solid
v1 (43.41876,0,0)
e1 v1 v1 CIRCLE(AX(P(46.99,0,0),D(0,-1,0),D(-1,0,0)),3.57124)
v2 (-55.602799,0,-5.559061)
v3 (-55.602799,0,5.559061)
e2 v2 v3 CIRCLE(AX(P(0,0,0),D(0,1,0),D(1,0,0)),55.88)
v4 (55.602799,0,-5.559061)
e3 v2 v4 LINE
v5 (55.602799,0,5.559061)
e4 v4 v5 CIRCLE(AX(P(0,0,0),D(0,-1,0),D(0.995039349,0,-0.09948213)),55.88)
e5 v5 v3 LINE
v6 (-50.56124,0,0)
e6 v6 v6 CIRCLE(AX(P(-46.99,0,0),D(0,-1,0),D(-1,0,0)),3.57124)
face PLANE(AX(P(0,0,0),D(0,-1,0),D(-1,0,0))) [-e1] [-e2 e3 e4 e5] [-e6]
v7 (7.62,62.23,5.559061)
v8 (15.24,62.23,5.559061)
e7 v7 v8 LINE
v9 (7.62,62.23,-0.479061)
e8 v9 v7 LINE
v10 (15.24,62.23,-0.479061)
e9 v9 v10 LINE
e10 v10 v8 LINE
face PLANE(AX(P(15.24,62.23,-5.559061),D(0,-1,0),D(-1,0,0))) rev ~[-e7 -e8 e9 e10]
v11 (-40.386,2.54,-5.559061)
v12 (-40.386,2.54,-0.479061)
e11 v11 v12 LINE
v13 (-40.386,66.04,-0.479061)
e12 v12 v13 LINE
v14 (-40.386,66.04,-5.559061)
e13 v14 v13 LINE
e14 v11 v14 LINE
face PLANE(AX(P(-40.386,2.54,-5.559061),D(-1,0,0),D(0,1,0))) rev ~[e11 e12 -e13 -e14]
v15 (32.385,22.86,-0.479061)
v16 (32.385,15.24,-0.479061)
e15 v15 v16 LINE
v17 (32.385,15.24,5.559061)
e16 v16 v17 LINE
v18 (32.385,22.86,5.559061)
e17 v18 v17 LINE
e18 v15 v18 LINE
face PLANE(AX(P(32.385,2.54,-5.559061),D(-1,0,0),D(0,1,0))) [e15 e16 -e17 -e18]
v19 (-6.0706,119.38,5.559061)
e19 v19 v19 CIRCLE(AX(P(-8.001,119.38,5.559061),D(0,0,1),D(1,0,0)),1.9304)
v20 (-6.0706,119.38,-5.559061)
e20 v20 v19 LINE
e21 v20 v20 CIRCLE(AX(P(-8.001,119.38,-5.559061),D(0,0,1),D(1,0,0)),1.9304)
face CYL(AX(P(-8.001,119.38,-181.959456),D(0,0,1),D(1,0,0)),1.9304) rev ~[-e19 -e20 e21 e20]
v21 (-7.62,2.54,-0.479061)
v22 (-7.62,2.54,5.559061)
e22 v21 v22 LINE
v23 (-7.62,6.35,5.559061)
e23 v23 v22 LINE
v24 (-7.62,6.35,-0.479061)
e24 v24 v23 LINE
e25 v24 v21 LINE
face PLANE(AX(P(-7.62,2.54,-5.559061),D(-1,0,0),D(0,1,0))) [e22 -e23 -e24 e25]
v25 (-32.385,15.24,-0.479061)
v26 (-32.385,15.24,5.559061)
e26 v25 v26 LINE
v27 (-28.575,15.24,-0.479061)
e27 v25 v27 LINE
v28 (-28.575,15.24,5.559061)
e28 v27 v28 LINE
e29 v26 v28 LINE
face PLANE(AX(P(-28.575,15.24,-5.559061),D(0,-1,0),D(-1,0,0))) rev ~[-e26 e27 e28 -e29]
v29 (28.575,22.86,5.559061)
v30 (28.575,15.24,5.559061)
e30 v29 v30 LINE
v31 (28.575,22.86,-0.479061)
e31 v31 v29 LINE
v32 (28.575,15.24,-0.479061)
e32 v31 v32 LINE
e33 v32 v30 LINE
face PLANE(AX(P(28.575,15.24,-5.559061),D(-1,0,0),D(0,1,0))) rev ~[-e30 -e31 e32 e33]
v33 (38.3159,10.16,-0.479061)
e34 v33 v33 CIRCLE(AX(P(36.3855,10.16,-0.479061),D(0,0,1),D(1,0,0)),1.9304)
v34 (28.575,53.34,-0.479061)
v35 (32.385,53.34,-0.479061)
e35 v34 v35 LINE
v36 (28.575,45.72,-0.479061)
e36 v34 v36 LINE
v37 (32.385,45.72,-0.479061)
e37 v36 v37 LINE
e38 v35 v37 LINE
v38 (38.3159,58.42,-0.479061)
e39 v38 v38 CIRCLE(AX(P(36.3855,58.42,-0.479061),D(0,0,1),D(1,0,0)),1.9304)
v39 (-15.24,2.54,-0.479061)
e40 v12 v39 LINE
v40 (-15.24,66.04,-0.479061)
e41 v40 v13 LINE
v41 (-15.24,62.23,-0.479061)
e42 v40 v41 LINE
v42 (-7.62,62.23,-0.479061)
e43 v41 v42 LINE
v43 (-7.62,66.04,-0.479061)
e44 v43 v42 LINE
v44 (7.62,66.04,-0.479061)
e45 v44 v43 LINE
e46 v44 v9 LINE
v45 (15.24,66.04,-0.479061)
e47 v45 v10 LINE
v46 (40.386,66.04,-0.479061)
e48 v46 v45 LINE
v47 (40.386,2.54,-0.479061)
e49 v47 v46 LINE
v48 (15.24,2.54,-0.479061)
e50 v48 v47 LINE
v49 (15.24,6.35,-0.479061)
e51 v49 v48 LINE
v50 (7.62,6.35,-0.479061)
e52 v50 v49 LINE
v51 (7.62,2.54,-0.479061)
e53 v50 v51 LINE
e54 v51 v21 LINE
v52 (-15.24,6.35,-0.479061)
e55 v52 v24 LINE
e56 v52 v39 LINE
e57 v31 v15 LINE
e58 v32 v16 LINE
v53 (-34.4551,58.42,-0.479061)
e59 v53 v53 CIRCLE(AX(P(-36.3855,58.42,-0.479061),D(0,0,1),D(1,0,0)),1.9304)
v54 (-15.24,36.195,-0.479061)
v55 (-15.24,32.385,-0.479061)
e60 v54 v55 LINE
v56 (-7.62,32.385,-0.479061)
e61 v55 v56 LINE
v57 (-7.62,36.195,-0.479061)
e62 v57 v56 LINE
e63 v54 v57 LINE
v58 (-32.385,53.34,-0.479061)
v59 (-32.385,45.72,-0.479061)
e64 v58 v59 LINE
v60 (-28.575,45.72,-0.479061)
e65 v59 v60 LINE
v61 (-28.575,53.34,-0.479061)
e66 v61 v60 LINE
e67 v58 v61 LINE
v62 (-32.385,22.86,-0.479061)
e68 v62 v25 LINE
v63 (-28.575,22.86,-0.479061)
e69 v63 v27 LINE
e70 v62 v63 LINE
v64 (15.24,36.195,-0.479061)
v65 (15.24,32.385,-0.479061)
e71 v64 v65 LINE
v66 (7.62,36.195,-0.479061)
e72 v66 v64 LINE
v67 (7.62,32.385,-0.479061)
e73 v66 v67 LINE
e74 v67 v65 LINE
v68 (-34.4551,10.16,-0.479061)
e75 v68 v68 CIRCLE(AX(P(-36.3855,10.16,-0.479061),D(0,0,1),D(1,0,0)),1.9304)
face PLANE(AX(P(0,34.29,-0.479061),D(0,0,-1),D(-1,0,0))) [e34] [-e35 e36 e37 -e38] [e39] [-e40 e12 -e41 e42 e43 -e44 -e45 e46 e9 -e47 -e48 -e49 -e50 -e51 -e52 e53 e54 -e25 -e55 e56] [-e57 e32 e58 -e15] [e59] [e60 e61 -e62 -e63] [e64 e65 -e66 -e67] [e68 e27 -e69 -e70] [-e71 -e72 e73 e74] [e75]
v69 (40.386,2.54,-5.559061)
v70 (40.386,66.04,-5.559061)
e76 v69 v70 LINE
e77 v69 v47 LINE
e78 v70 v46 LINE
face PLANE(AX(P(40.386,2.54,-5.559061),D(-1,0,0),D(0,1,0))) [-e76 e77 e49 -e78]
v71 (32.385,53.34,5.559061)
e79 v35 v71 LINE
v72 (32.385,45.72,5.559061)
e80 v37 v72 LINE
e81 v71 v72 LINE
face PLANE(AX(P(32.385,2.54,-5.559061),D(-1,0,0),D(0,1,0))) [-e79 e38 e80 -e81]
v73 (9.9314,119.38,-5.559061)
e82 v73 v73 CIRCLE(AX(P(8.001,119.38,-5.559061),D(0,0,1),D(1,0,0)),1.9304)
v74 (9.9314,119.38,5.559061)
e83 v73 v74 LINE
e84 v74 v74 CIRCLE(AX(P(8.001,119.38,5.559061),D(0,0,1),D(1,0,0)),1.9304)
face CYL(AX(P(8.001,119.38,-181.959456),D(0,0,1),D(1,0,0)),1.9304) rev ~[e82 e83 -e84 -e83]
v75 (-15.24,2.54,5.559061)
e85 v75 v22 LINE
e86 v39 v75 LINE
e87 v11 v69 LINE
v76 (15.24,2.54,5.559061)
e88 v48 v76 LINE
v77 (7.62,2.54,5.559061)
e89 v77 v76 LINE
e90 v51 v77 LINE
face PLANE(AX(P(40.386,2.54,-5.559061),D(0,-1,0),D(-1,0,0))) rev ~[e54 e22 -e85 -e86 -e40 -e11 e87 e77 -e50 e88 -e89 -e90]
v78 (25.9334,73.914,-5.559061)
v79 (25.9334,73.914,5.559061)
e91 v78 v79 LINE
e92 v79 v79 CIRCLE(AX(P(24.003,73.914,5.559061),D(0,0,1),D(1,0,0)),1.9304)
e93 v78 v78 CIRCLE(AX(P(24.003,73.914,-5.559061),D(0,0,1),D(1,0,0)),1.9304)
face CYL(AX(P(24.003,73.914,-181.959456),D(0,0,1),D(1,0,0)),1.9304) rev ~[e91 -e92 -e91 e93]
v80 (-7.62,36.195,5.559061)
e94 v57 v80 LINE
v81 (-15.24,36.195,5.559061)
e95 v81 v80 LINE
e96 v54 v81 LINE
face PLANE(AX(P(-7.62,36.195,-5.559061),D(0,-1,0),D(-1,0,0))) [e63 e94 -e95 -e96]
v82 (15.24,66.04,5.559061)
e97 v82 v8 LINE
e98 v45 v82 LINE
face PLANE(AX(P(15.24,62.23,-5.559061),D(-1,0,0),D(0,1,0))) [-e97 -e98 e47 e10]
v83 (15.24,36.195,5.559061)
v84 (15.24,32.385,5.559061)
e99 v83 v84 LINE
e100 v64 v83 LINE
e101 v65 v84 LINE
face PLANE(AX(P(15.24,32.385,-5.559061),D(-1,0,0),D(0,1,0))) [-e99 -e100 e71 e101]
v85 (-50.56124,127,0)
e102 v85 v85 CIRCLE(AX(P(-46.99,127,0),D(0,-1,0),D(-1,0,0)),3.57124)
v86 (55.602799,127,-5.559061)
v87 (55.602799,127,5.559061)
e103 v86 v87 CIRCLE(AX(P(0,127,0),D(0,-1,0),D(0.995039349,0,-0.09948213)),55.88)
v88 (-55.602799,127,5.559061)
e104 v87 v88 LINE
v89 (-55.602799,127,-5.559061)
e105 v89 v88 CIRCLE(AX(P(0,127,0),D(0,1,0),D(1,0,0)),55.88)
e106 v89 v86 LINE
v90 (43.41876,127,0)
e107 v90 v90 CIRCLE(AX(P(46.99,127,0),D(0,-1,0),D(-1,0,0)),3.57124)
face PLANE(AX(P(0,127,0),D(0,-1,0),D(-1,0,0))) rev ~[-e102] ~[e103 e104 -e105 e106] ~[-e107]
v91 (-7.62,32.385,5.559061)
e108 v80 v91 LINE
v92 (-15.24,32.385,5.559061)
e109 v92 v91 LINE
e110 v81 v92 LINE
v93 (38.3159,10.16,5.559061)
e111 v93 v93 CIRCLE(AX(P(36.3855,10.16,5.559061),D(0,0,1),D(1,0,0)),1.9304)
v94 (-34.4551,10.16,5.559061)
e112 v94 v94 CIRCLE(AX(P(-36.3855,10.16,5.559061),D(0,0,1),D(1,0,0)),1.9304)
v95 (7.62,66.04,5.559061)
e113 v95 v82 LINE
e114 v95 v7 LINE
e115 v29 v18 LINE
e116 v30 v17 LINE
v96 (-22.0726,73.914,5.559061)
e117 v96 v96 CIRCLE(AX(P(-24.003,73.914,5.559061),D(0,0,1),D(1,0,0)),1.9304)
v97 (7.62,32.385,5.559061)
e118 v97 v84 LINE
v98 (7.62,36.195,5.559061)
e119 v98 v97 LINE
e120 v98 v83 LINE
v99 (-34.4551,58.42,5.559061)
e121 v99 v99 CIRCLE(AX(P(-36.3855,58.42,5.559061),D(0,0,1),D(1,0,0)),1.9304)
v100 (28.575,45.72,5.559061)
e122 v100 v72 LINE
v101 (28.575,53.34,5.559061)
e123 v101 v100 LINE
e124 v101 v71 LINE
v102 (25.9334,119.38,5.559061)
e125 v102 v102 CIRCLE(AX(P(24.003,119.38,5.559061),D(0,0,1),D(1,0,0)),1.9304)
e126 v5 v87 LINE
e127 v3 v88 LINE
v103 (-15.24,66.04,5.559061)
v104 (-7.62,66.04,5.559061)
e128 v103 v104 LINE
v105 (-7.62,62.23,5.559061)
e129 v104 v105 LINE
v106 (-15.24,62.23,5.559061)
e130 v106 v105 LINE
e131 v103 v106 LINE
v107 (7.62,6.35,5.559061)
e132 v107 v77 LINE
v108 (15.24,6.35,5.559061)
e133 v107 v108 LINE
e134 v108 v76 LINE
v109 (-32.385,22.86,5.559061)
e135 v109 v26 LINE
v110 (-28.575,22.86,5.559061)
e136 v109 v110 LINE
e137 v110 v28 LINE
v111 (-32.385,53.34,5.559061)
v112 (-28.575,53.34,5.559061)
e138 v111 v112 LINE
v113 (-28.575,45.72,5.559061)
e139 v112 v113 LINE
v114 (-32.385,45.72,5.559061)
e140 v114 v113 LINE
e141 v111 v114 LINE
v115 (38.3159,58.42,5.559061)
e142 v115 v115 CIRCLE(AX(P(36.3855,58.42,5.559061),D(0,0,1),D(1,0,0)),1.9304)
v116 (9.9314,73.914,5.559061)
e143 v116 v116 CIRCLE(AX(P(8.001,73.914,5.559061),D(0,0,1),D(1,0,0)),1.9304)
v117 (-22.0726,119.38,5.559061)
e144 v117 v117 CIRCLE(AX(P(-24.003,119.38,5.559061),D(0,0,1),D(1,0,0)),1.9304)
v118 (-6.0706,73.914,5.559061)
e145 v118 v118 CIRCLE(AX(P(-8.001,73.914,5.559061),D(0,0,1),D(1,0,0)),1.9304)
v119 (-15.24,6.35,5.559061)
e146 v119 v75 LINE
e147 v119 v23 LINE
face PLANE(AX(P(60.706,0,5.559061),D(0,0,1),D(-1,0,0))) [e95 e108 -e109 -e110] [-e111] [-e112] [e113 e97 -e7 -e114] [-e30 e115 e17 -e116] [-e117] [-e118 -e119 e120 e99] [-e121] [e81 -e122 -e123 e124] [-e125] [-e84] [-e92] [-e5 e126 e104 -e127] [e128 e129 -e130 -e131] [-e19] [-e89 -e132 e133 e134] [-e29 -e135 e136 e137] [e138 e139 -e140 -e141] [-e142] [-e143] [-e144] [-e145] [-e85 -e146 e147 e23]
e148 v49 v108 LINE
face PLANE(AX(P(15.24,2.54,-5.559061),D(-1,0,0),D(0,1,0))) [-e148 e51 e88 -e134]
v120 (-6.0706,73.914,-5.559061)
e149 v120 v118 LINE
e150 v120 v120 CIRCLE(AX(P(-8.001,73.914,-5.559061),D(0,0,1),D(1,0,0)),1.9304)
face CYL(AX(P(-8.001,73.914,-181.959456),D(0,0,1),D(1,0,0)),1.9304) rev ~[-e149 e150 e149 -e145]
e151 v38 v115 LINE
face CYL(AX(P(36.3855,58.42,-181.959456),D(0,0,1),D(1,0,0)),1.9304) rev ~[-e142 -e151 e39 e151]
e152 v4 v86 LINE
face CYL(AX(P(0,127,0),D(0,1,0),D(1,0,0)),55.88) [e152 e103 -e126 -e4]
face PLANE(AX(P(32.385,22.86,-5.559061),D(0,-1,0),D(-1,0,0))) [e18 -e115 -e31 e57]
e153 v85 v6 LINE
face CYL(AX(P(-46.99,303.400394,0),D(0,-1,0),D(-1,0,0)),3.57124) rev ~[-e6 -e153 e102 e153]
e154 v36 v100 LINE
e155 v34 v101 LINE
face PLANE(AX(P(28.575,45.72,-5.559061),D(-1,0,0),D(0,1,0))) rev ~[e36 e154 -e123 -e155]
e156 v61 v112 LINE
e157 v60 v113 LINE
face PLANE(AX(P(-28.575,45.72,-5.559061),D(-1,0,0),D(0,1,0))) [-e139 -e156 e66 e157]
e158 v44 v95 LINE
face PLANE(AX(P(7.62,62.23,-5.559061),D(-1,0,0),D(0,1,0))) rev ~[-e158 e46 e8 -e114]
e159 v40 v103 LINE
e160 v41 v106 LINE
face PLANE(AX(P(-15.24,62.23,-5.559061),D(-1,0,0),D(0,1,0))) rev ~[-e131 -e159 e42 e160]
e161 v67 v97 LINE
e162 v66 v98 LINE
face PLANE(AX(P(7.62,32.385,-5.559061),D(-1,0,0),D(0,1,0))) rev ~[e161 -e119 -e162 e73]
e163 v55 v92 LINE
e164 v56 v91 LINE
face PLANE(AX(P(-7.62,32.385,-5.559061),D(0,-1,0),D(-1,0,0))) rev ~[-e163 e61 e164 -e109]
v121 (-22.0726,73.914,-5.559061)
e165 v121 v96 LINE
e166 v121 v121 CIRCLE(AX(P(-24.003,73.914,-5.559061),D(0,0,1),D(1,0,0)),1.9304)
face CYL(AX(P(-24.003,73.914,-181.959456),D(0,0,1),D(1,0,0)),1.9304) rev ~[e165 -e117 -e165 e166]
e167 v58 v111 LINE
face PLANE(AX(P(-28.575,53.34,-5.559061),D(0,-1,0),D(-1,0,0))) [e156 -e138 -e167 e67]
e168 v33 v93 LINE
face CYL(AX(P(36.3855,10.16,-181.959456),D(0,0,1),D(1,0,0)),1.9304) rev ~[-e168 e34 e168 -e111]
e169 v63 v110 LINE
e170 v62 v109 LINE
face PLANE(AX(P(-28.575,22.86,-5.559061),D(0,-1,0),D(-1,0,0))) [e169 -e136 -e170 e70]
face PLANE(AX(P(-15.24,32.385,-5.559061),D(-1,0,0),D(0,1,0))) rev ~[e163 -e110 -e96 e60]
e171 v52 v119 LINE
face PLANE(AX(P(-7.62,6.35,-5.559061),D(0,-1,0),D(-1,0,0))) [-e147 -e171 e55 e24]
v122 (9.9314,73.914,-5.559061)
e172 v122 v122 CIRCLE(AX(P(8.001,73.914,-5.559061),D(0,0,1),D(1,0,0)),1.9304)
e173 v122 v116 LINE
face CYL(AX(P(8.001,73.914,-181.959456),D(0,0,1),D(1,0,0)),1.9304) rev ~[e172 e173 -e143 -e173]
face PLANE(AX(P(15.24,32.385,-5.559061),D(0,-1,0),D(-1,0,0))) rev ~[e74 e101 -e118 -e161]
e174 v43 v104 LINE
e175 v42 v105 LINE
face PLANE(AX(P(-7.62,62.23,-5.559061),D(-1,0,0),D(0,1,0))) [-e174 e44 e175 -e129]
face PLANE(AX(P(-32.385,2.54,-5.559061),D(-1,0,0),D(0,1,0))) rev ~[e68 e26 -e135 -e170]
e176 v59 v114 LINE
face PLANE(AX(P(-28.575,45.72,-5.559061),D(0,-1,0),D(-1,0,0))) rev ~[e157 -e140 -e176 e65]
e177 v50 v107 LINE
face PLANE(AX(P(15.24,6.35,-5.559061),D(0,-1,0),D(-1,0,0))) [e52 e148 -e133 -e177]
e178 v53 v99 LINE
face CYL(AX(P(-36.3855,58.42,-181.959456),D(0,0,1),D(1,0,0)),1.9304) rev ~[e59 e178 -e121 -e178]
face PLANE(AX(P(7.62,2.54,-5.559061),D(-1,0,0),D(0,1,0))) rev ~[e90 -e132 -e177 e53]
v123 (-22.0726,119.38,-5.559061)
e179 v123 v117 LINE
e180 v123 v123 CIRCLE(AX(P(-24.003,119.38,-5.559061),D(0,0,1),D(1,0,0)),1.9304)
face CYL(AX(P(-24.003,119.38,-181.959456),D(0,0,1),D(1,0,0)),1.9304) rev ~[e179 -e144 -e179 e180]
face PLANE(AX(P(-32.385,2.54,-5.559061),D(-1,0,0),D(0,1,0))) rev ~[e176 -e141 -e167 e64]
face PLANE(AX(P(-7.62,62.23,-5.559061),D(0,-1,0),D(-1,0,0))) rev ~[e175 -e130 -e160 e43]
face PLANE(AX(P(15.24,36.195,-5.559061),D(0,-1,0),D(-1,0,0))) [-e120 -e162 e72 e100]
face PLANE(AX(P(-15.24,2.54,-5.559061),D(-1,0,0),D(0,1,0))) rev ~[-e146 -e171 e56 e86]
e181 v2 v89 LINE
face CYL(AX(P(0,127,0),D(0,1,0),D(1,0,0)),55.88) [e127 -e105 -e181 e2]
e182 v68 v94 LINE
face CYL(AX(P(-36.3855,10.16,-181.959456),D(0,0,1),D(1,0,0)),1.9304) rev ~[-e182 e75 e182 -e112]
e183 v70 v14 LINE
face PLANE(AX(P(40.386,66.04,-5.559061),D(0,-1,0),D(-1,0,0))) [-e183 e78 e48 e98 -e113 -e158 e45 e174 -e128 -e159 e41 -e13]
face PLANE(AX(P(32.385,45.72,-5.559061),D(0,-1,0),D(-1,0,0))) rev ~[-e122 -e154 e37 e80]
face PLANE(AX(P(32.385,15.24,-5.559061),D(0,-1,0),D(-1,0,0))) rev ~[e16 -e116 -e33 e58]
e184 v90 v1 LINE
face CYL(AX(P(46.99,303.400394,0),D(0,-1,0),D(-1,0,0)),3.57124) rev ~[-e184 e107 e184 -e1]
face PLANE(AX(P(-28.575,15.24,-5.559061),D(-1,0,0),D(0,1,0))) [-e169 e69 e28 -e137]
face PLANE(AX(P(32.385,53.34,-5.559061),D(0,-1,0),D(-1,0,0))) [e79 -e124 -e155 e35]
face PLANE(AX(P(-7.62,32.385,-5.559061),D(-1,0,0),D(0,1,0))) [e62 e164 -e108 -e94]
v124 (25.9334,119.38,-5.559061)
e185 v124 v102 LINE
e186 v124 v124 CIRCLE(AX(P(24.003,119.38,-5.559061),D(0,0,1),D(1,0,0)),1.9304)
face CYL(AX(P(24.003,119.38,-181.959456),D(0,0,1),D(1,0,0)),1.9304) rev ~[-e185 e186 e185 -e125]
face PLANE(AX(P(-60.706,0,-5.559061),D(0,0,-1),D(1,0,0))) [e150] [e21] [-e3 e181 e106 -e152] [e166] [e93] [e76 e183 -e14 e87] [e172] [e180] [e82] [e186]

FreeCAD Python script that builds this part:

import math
import FreeCAD as App
import Part
import Sketcher

V = App.Vector
Q = App.Units.Quantity

doc = App.newDocument("Part")
body = doc.addObject("PartDesign::Body", "Body")

sketch1 = doc.addObject("Sketcher::SketchObject", "Sketch")
body.addObject(sketch1)
sketch1.AttachmentSupport = (doc.XZ_Plane, [""])
sketch1.MapMode = "FlatFace"
sketch1.addGeometry(Part.LineSegment(V(61, -6, 0), V(-61, -6, 0)), False)
sketch1.addGeometry(Part.ArcOfCircle(Part.Circle(V(0, 0, 0), V(0, 0, 1), 61), math.radians(174.77), math.radians(185.23)), False)
sketch1.addGeometry(Part.LineSegment(V(-61, 6, 0), V(61, 6, 0)), False)
sketch1.addGeometry(Part.ArcOfCircle(Part.Circle(V(0, 0, 0), V(0, 0, 1), 61), math.radians(-5.23), math.radians(5.23)), False)
sketch1.addConstraint(Sketcher.Constraint("Coincident", 0, 2, 1, 2))
sketch1.addConstraint(Sketcher.Constraint("Coincident", 1, 1, 2, 1))
sketch1.addConstraint(Sketcher.Constraint("Coincident", 2, 2, 3, 2))
sketch1.addConstraint(Sketcher.Constraint("Coincident", 3, 1, 0, 1))
sketch1.addConstraint(Sketcher.Constraint("Horizontal", 0))
sketch1.addConstraint(Sketcher.Constraint("Horizontal", 2))
sketch1.addConstraint(Sketcher.Constraint("Coincident", 1, 3, -1, 1))
sketch1.addConstraint(Sketcher.Constraint("Coincident", 3, 3, -1, 1))
sketch1.addConstraint(Sketcher.Constraint("Equal", 1, 3))
sketch1.addConstraint(Sketcher.Constraint("Vertical", 0, 2, 1, 1))
sketch1.addConstraint(Sketcher.Constraint("Radius", 1, Q("2.4 in")))
sketch1.addConstraint(Sketcher.Constraint("DistanceX", 0, 2, 0, 1, Q("4.78 in")))
pad1 = doc.addObject("PartDesign::Pad", "Pad")
body.addObject(pad1)
pad1.Profile = sketch1
pad1.Length = Q("5 in")
pad1.Reversed = True

sketch2 = doc.addObject("Sketcher::SketchObject", "Sketch001")
body.addObject(sketch2)
sketch2.AttachmentSupport = (doc.XZ_Plane, [""])
sketch2.MapMode = "FlatFace"
sketch2.AttachmentOffset = App.Placement(V(0, 0, -5 * 25.4), App.Rotation())
sketch2.addGeometry(Part.Circle(V(-47, 0, 0), V(0, 0, 1), 3.6), False)
sketch2.addGeometry(Part.Circle(V(47, 0, 0), V(0, 0, 1), 3.6), False)
sketch2.addConstraint(Sketcher.Constraint("Equal", 0, 1))
sketch2.addConstraint(Sketcher.Constraint("Symmetric", 0, 3, 1, 3, -1, 1))
sketch2.addConstraint(Sketcher.Constraint("PointOnObject", 0, 3, -1))
sketch2.addConstraint(Sketcher.Constraint("Diameter", 0, Q("0.2812 in")))
sketch2.addConstraint(Sketcher.Constraint("DistanceX", 0, 3, 1, 3, Q("3.7 in")))
doc.recompute()
hole = doc.addObject("PartDesign::Hole", "Hole")
body.addObject(hole)
hole.Profile = sketch2
hole.ThreadType = "None"
hole.Diameter = Q("0.2812 in")
hole.DepthType = "ThroughAll"
hole.Reversed = True

sketch3 = doc.addObject("Sketcher::SketchObject", "Sketch002")
body.addObject(sketch3)
sketch3.AttachmentSupport = (doc.XY_Plane, [""])
sketch3.MapMode = "FlatFace"
sketch3.AttachmentOffset = App.Placement(V(0, 0, -5.559061), App.Rotation())
sketch3.addGeometry(Part.Circle(V(8, 119.4, 0), V(0, 0, 1), 1.9), False)
sketch3.addGeometry(Part.Circle(V(8, 73.9, 0), V(0, 0, 1), 1.9), False)
sketch3.addGeometry(Part.Circle(V(-8, 73.9, 0), V(0, 0, 1), 1.9), False)
sketch3.addGeometry(Part.Circle(V(-8, 119.4, 0), V(0, 0, 1), 1.9), False)
sketch3.addConstraint(Sketcher.Constraint("Equal", 0, 1))
sketch3.addConstraint(Sketcher.Constraint("Equal", 1, 2))
sketch3.addConstraint(Sketcher.Constraint("Equal", 2, 3))
sketch3.addConstraint(Sketcher.Constraint("Symmetric", 1, 3, 2, 3, -2))
sketch3.addConstraint(Sketcher.Constraint("Symmetric", 0, 3, 3, 3, -2))
sketch3.addConstraint(Sketcher.Constraint("Vertical", 0, 3, 1, 3))
sketch3.addConstraint(Sketcher.Constraint("Diameter", 0, Q("0.152 in")))
sketch3.addConstraint(Sketcher.Constraint("DistanceY", -1, 1, 0, 3, Q("4.7 in")))
sketch3.addConstraint(Sketcher.Constraint("DistanceY", -1, 1, 1, 3, Q("2.91 in")))
sketch3.addConstraint(Sketcher.Constraint("DistanceX", 2, 3, 1, 3, Q("0.63 in")))
doc.recompute()
hole2 = doc.addObject("PartDesign::Hole", "Hole001")
body.addObject(hole2)
hole2.Profile = sketch3
hole2.ThreadType = "None"
hole2.Diameter = Q("0.152 in")
hole2.DepthType = "ThroughAll"
hole2.Reversed = True

sketch4 = doc.addObject("Sketcher::SketchObject", "Sketch003")
body.addObject(sketch4)
sketch4.AttachmentSupport = (doc.XY_Plane, [""])
sketch4.MapMode = "FlatFace"
sketch4.AttachmentOffset = App.Placement(V(0, 0, -5.559061), App.Rotation())
sketch4.addGeometry(Part.LineSegment(V(15.2, 36.2, 0), V(15.2, 32.4, 0)), False)
sketch4.addGeometry(Part.LineSegment(V(15.2, 32.4, 0), V(7.6, 32.4, 0)), False)
sketch4.addGeometry(Part.LineSegment(V(7.6, 32.4, 0), V(7.6, 36.2, 0)), False)
sketch4.addGeometry(Part.LineSegment(V(7.6, 36.2, 0), V(15.2, 36.2, 0)), False)
sketch4.addGeometry(Part.LineSegment(V(-28.6, 53.3, 0), V(-28.6, 45.7, 0)), False)
sketch4.addGeometry(Part.LineSegment(V(-28.6, 45.7, 0), V(-32.4, 45.7, 0)), False)
sketch4.addGeometry(Part.LineSegment(V(-32.4, 45.7, 0), V(-32.4, 53.3, 0)), False)
sketch4.addGeometry(Part.LineSegment(V(-32.4, 53.3, 0), V(-28.6, 53.3, 0)), False)
sketch4.addGeometry(Part.LineSegment(V(15.2, 66, 0), V(15.2, 62.2, 0)), False)
sketch4.addGeometry(Part.LineSegment(V(15.2, 62.2, 0), V(7.6, 62.2, 0)), False)
sketch4.addGeometry(Part.LineSegment(V(7.6, 62.2, 0), V(7.6, 66, 0)), False)
sketch4.addGeometry(Part.LineSegment(V(7.6, 66, 0), V(15.2, 66, 0)), False)
sketch4.addGeometry(Part.LineSegment(V(-7.6, 66, 0), V(-7.6, 62.2, 0)), False)
sketch4.addGeometry(Part.LineSegment(V(-7.6, 62.2, 0), V(-15.2, 62.2, 0)), False)
sketch4.addGeometry(Part.LineSegment(V(-15.2, 62.2, 0), V(-15.2, 66, 0)), False)
sketch4.addGeometry(Part.LineSegment(V(-15.2, 66, 0), V(-7.6, 66, 0)), False)
sketch4.addGeometry(Part.LineSegment(V(15.2, 6.3, 0), V(15.2, 2.5, 0)), False)
sketch4.addGeometry(Part.LineSegment(V(15.2, 2.5, 0), V(7.6, 2.5, 0)), False)
sketch4.addGeometry(Part.LineSegment(V(7.6, 2.5, 0), V(7.6, 6.3, 0)), False)
sketch4.addGeometry(Part.LineSegment(V(7.6, 6.3, 0), V(15.2, 6.3, 0)), False)
sketch4.addGeometry(Part.LineSegment(V(-7.6, 6.3, 0), V(-7.6, 2.5, 0)), False)
sketch4.addGeometry(Part.LineSegment(V(-7.6, 2.5, 0), V(-15.2, 2.5, 0)), False)
sketch4.addGeometry(Part.LineSegment(V(-15.2, 2.5, 0), V(-15.2, 6.3, 0)), False)
sketch4.addGeometry(Part.LineSegment(V(-15.2, 6.3, 0), V(-7.6, 6.3, 0)), False)
sketch4.addGeometry(Part.LineSegment(V(32.4, 53.3, 0), V(32.4, 45.7, 0)), False)
sketch4.addGeometry(Part.LineSegment(V(32.4, 45.7, 0), V(28.6, 45.7, 0)), False)
sketch4.addGeometry(Part.LineSegment(V(28.6, 45.7, 0), V(28.6, 53.3, 0)), False)
sketch4.addGeometry(Part.LineSegment(V(28.6, 53.3, 0), V(32.4, 53.3, 0)), False)
sketch4.addGeometry(Part.LineSegment(V(-28.6, 22.9, 0), V(-28.6, 15.2, 0)), False)
sketch4.addGeometry(Part.LineSegment(V(-28.6, 15.2, 0), V(-32.4, 15.2, 0)), False)
sketch4.addGeometry(Part.LineSegment(V(-32.4, 15.2, 0), V(-32.4, 22.9, 0)), False)
sketch4.addGeometry(Part.LineSegment(V(-32.4, 22.9, 0), V(-28.6, 22.9, 0)), False)
sketch4.addGeometry(Part.LineSegment(V(32.4, 22.9, 0), V(32.4, 15.2, 0)), False)
sketch4.addGeometry(Part.LineSegment(V(32.4, 15.2, 0), V(28.6, 15.2, 0)), False)
sketch4.addGeometry(Part.LineSegment(V(28.6, 15.2, 0), V(28.6, 22.9, 0)), False)
sketch4.addGeometry(Part.LineSegment(V(28.6, 22.9, 0), V(32.4, 22.9, 0)), False)
sketch4.addGeometry(Part.LineSegment(V(-7.6, 36.2, 0), V(-7.6, 32.4, 0)), False)
sketch4.addGeometry(Part.LineSegment(V(-7.6, 32.4, 0), V(-15.2, 32.4, 0)), False)
sketch4.addGeometry(Part.LineSegment(V(-15.2, 32.4, 0), V(-15.2, 36.2, 0)), False)
sketch4.addGeometry(Part.LineSegment(V(-15.2, 36.2, 0), V(-7.6, 36.2, 0)), False)
sketch4.addConstraint(Sketcher.Constraint("Coincident", 0, 2, 1, 1))
sketch4.addConstraint(Sketcher.Constraint("Coincident", 1, 2, 2, 1))
sketch4.addConstraint(Sketcher.Constraint("Coincident", 2, 2, 3, 1))
sketch4.addConstraint(Sketcher.Constraint("Coincident", 3, 2, 0, 1))
sketch4.addConstraint(Sketcher.Constraint("Coincident", 4, 2, 5, 1))
sketch4.addConstraint(Sketcher.Constraint("Coincident", 5, 2, 6, 1))
sketch4.addConstraint(Sketcher.Constraint("Coincident", 6, 2, 7, 1))
sketch4.addConstraint(Sketcher.Constraint("Coincident", 7, 2, 4, 1))
sketch4.addConstraint(Sketcher.Constraint("Coincident", 8, 2, 9, 1))
sketch4.addConstraint(Sketcher.Constraint("Coincident", 9, 2, 10, 1))
sketch4.addConstraint(Sketcher.Constraint("Coincident", 10, 2, 11, 1))
sketch4.addConstraint(Sketcher.Constraint("Coincident", 11, 2, 8, 1))
sketch4.addConstraint(Sketcher.Constraint("Coincident", 12, 2, 13, 1))
sketch4.addConstraint(Sketcher.Constraint("Coincident", 13, 2, 14, 1))
sketch4.addConstraint(Sketcher.Constraint("Coincident", 14, 2, 15, 1))
sketch4.addConstraint(Sketcher.Constraint("Coincident", 15, 2, 12, 1))
sketch4.addConstraint(Sketcher.Constraint("Coincident", 16, 2, 17, 1))
sketch4.addConstraint(Sketcher.Constraint("Coincident", 17, 2, 18, 1))
sketch4.addConstraint(Sketcher.Constraint("Coincident", 18, 2, 19, 1))
sketch4.addConstraint(Sketcher.Constraint("Coincident", 19, 2, 16, 1))
sketch4.addConstraint(Sketcher.Constraint("Coincident", 20, 2, 21, 1))
sketch4.addConstraint(Sketcher.Constraint("Coincident", 21, 2, 22, 1))
sketch4.addConstraint(Sketcher.Constraint("Coincident", 22, 2, 23, 1))
sketch4.addConstraint(Sketcher.Constraint("Coincident", 23, 2, 20, 1))
sketch4.addConstraint(Sketcher.Constraint("Coincident", 24, 2, 25, 1))
sketch4.addConstraint(Sketcher.Constraint("Coincident", 25, 2, 26, 1))
sketch4.addConstraint(Sketcher.Constraint("Coincident", 26, 2, 27, 1))
sketch4.addConstraint(Sketcher.Constraint("Coincident", 27, 2, 24, 1))
sketch4.addConstraint(Sketcher.Constraint("Coincident", 28, 2, 29, 1))
sketch4.addConstraint(Sketcher.Constraint("Coincident", 29, 2, 30, 1))
sketch4.addConstraint(Sketcher.Constraint("Coincident", 30, 2, 31, 1))
sketch4.addConstraint(Sketcher.Constraint("Coincident", 31, 2, 28, 1))
sketch4.addConstraint(Sketcher.Constraint("Coincident", 32, 2, 33, 1))
sketch4.addConstraint(Sketcher.Constraint("Coincident", 33, 2, 34, 1))
sketch4.addConstraint(Sketcher.Constraint("Coincident", 34, 2, 35, 1))
sketch4.addConstraint(Sketcher.Constraint("Coincident", 35, 2, 32, 1))
sketch4.addConstraint(Sketcher.Constraint("Coincident", 36, 2, 37, 1))
sketch4.addConstraint(Sketcher.Constraint("Coincident", 37, 2, 38, 1))
sketch4.addConstraint(Sketcher.Constraint("Coincident", 38, 2, 39, 1))
sketch4.addConstraint(Sketcher.Constraint("Coincident", 39, 2, 36, 1))
sketch4.addConstraint(Sketcher.Constraint("Vertical", 0))
sketch4.addConstraint(Sketcher.Constraint("Horizontal", 1))
sketch4.addConstraint(Sketcher.Constraint("Vertical", 2))
sketch4.addConstraint(Sketcher.Constraint("Horizontal", 3))
sketch4.addConstraint(Sketcher.Constraint("Vertical", 4))
sketch4.addConstraint(Sketcher.Constraint("Horizontal", 5))
sketch4.addConstraint(Sketcher.Constraint("Vertical", 6))
sketch4.addConstraint(Sketcher.Constraint("Horizontal", 7))
sketch4.addConstraint(Sketcher.Constraint("Vertical", 8))
sketch4.addConstraint(Sketcher.Constraint("Horizontal", 9))
sketch4.addConstraint(Sketcher.Constraint("Vertical", 10))
sketch4.addConstraint(Sketcher.Constraint("Horizontal", 11))
sketch4.addConstraint(Sketcher.Constraint("Vertical", 12))
sketch4.addConstraint(Sketcher.Constraint("Horizontal", 13))
sketch4.addConstraint(Sketcher.Constraint("Vertical", 14))
sketch4.addConstraint(Sketcher.Constraint("Horizontal", 15))
sketch4.addConstraint(Sketcher.Constraint("Vertical", 16))
sketch4.addConstraint(Sketcher.Constraint("Horizontal", 17))
sketch4.addConstraint(Sketcher.Constraint("Vertical", 18))
sketch4.addConstraint(Sketcher.Constraint("Horizontal", 19))
sketch4.addConstraint(Sketcher.Constraint("Vertical", 20))
sketch4.addConstraint(Sketcher.Constraint("Horizontal", 21))
sketch4.addConstraint(Sketcher.Constraint("Vertical", 22))
sketch4.addConstraint(Sketcher.Constraint("Horizontal", 23))
sketch4.addConstraint(Sketcher.Constraint("Vertical", 24))
sketch4.addConstraint(Sketcher.Constraint("Horizontal", 25))
sketch4.addConstraint(Sketcher.Constraint("Vertical", 26))
sketch4.addConstraint(Sketcher.Constraint("Horizontal", 27))
sketch4.addConstraint(Sketcher.Constraint("Vertical", 28))
sketch4.addConstraint(Sketcher.Constraint("Horizontal", 29))
sketch4.addConstraint(Sketcher.Constraint("Vertical", 30))
sketch4.addConstraint(Sketcher.Constraint("Horizontal", 31))
sketch4.addConstraint(Sketcher.Constraint("Vertical", 32))
sketch4.addConstraint(Sketcher.Constraint("Horizontal", 33))
sketch4.addConstraint(Sketcher.Constraint("Vertical", 34))
sketch4.addConstraint(Sketcher.Constraint("Horizontal", 35))
sketch4.addConstraint(Sketcher.Constraint("Vertical", 36))
sketch4.addConstraint(Sketcher.Constraint("Horizontal", 37))
sketch4.addConstraint(Sketcher.Constraint("Vertical", 38))
sketch4.addConstraint(Sketcher.Constraint("Horizontal", 39))
sketch4.addConstraint(Sketcher.Constraint("Symmetric", 9, 2, 12, 2, -2))
sketch4.addConstraint(Sketcher.Constraint("Symmetric", 11, 2, 14, 2, -2))
sketch4.addConstraint(Sketcher.Constraint("Symmetric", 17, 2, 20, 2, -2))
sketch4.addConstraint(Sketcher.Constraint("Symmetric", 19, 2, 22, 2, -2))
sketch4.addConstraint(Sketcher.Constraint("Symmetric", 5, 2, 24, 2, -2))
sketch4.addConstraint(Sketcher.Constraint("Symmetric", 7, 2, 26, 2, -2))
sketch4.addConstraint(Sketcher.Constraint("Symmetric", 29, 2, 32, 2, -2))
sketch4.addConstraint(Sketcher.Constraint("Symmetric", 31, 2, 34, 2, -2))
sketch4.addConstraint(Sketcher.Constraint("Symmetric", 1, 2, 36, 2, -2))
sketch4.addConstraint(Sketcher.Constraint("Symmetric", 3, 2, 38, 2, -2))
sketch4.addConstraint(Sketcher.Constraint("Vertical", 3, 2, 8, 2))
sketch4.addConstraint(Sketcher.Constraint("Vertical", 2, 2, 9, 2))
sketch4.addConstraint(Sketcher.Constraint("Vertical", 11, 2, 16, 2))
sketch4.addConstraint(Sketcher.Constraint("Vertical", 10, 2, 17, 2))
sketch4.addConstraint(Sketcher.Constraint("Vertical", 7, 2, 28, 2))
sketch4.addConstraint(Sketcher.Constraint("Vertical", 6, 2, 29, 2))
sketch4.addConstraint(Sketcher.Constraint("Equal", 35, 0))
sketch4.addConstraint(Sketcher.Constraint("Equal", 39, 4))
sketch4.addConstraint(Sketcher.Constraint("Equal", 2, 8))
sketch4.addConstraint(Sketcher.Constraint("Equal", 14, 16))
sketch4.addConstraint(Sketcher.Constraint("Equal", 26, 28))
sketch4.addConstraint(Sketcher.Constraint("DistanceX", 1, 2, 1, 1, Q("0.3 in")))
sketch4.addConstraint(Sketcher.Constraint("DistanceX", 5, 2, 5, 1, Q("0.15 in")))
sketch4.addConstraint(Sketcher.Constraint("DistanceX", -1, 1, 0, 2, Q("0.6 in")))
sketch4.addConstraint(Sketcher.Constraint("DistanceY", -1, 1, 4, 2, Q("1.8 in")))
sketch4.addConstraint(Sketcher.Constraint("DistanceY", -1, 1, 10, 2, Q("2.6 in")))
sketch4.addConstraint(Sketcher.Constraint("DistanceY", -1, 1, 16, 2, Q("0.1 in")))
sketch4.addConstraint(Sketcher.Constraint("DistanceY", -1, 1, 28, 2, Q("0.6 in")))
sketch4.addConstraint(Sketcher.Constraint("DistanceY", -1, 1, 0, 2, Q("1.275 in")))
sketch4.addConstraint(Sketcher.Constraint("DistanceX", 4, 2, -1, 1, Q("1.125 in")))
pocket1 = doc.addObject("PartDesign::Pocket", "Pocket")
body.addObject(pocket1)
pocket1.Profile = sketch4
pocket1.Type = "ThroughAll"
pocket1.Reversed = True

sketch5 = doc.addObject("Sketcher::SketchObject", "Sketch004")
body.addObject(sketch5)
sketch5.AttachmentSupport = (doc.XY_Plane, [""])
sketch5.MapMode = "FlatFace"
sketch5.AttachmentOffset = App.Placement(V(0, 0, -5.559061), App.Rotation())
sketch5.addGeometry(Part.Circle(V(24, 119.4, 0), V(0, 0, 1), 1.9), False)
sketch5.addGeometry(Part.Circle(V(24, 73.9, 0), V(0, 0, 1), 1.9), False)
sketch5.addGeometry(Part.Circle(V(-24, 73.9, 0), V(0, 0, 1), 1.9), False)
sketch5.addGeometry(Part.Circle(V(-24, 119.4, 0), V(0, 0, 1), 1.9), False)
sketch5.addConstraint(Sketcher.Constraint("Equal", 0, 1))
sketch5.addConstraint(Sketcher.Constraint("Equal", 1, 2))
sketch5.addConstraint(Sketcher.Constraint("Equal", 2, 3))
sketch5.addConstraint(Sketcher.Constraint("Symmetric", 1, 3, 2, 3, -2))
sketch5.addConstraint(Sketcher.Constraint("Symmetric", 0, 3, 3, 3, -2))
sketch5.addConstraint(Sketcher.Constraint("Vertical", 0, 3, 1, 3))
sketch5.addConstraint(Sketcher.Constraint("Diameter", 0, Q("0.152 in")))
sketch5.addConstraint(Sketcher.Constraint("DistanceY", -1, 1, 0, 3, Q("4.7 in")))
sketch5.addConstraint(Sketcher.Constraint("DistanceY", -1, 1, 1, 3, Q("2.91 in")))
sketch5.addConstraint(Sketcher.Constraint("DistanceX", 2, 3, 1, 3, Q("1.89 in")))
doc.recompute()
hole3 = doc.addObject("PartDesign::Hole", "Hole002")
body.addObject(hole3)
hole3.Profile = sketch5
hole3.ThreadType = "None"
hole3.Diameter = Q("0.152 in")
hole3.DepthType = "ThroughAll"
hole3.Reversed = True

sketch6 = doc.addObject("Sketcher::SketchObject", "Sketch005")
body.addObject(sketch6)
sketch6.AttachmentSupport = (doc.XY_Plane, [""])
sketch6.MapMode = "FlatFace"
sketch6.AttachmentOffset = App.Placement(V(0, 0, -5.559061), App.Rotation())
sketch6.addGeometry(Part.Circle(V(36.4, 58.4, 0), V(0, 0, 1), 1.9), False)
sketch6.addGeometry(Part.Circle(V(36.4, 10.2, 0), V(0, 0, 1), 1.9), False)
sketch6.addGeometry(Part.Circle(V(-36.4, 10.2, 0), V(0, 0, 1), 1.9), False)
sketch6.addGeometry(Part.Circle(V(-36.4, 58.4, 0), V(0, 0, 1), 1.9), False)
sketch6.addConstraint(Sketcher.Constraint("Equal", 0, 1))
sketch6.addConstraint(Sketcher.Constraint("Equal", 1, 2))
sketch6.addConstraint(Sketcher.Constraint("Equal", 2, 3))
sketch6.addConstraint(Sketcher.Constraint("Symmetric", 1, 3, 2, 3, -2))
sketch6.addConstraint(Sketcher.Constraint("Symmetric", 0, 3, 3, 3, -2))
sketch6.addConstraint(Sketcher.Constraint("Vertical", 0, 3, 1, 3))
sketch6.addConstraint(Sketcher.Constraint("Diameter", 0, Q("0.152 in")))
sketch6.addConstraint(Sketcher.Constraint("DistanceY", -1, 1, 0, 3, Q("2.3 in")))
sketch6.addConstraint(Sketcher.Constraint("DistanceY", -1, 1, 1, 3, Q("0.4 in")))
sketch6.addConstraint(Sketcher.Constraint("DistanceX", 2, 3, 1, 3, Q("2.865 in")))
doc.recompute()
hole4 = doc.addObject("PartDesign::Hole", "Hole003")
body.addObject(hole4)
hole4.Profile = sketch6
hole4.ThreadType = "None"
hole4.Diameter = Q("0.152 in")
hole4.DepthType = "ThroughAll"
hole4.Reversed = True

sketch7 = doc.addObject("Sketcher::SketchObject", "Sketch006")
body.addObject(sketch7)
sketch7.AttachmentSupport = (doc.XY_Plane, [""])
sketch7.MapMode = "FlatFace"
sketch7.AttachmentOffset = App.Placement(V(0, 0, -5.559061), App.Rotation())
sketch7.addGeometry(Part.LineSegment(V(32, 66, 0), V(32, 3, 0)), False)
sketch7.addGeometry(Part.LineSegment(V(32, 3, 0), V(-32, 3, 0)), False)
sketch7.addGeometry(Part.LineSegment(V(-32, 3, 0), V(-32, 66, 0)), False)
sketch7.addGeometry(Part.LineSegment(V(-32, 66, 0), V(32, 66, 0)), False)
sketch7.addConstraint(Sketcher.Constraint("Coincident", 0, 2, 1, 1))
sketch7.addConstraint(Sketcher.Constraint("Coincident", 1, 2, 2, 1))
sketch7.addConstraint(Sketcher.Constraint("Coincident", 2, 2, 3, 1))
sketch7.addConstraint(Sketcher.Constraint("Coincident", 3, 2, 0, 1))
sketch7.addConstraint(Sketcher.Constraint("Vertical", 0))
sketch7.addConstraint(Sketcher.Constraint("Horizontal", 1))
sketch7.addConstraint(Sketcher.Constraint("Vertical", 2))
sketch7.addConstraint(Sketcher.Constraint("Horizontal", 3))
sketch7.addConstraint(Sketcher.Constraint("DistanceY", 0, 2, 0, 1, Q("2.5 in")))
sketch7.addConstraint(Sketcher.Constraint("DistanceX", 1, 2, 1, 1, Q("2.55 in")))
sketch7.addConstraint(Sketcher.Constraint("DistanceY", -1, 1, 0, 2, Q("0.1 in")))
sketch7.addConstraint(Sketcher.Constraint("DistanceX", -1, 1, 0, 2, Q("1.275 in")))
pocket2 = doc.addObject("PartDesign::Pocket", "Pocket001")
body.addObject(pocket2)
pocket2.Profile = sketch7
pocket2.Length = Q("0.2 in")
pocket2.Reversed = True

sketch8 = doc.addObject("Sketcher::SketchObject", "Sketch007")
body.addObject(sketch8)
sketch8.AttachmentSupport = (doc.XZ_Plane, [""])
sketch8.MapMode = "FlatFace"
sketch8.AttachmentOffset = App.Placement(V(0, 0, -5 * 25.4), App.Rotation())
sketch8.addGeometry(Part.Circle(V(0, 0, 0), V(0, 0, 1), 76), False)
sketch8.addGeometry(Part.Circle(V(0, 0, 0), V(0, 0, 1), 56), False)
sketch8.addConstraint(Sketcher.Constraint("Coincident", 0, 3, -1, 1))
sketch8.addConstraint(Sketcher.Constraint("Coincident", 1, 3, -1, 1))
sketch8.addConstraint(Sketcher.Constraint("Diameter", 0, Q("6 in")))
sketch8.addConstraint(Sketcher.Constraint("Diameter", 1, Q("4.4 in")))
pocket3 = doc.addObject("PartDesign::Pocket", "Pocket002")
body.addObject(pocket3)
pocket3.Profile = sketch8
pocket3.Type = "ThroughAll"
pocket3.Reversed = True

sketch9 = doc.addObject("Sketcher::SketchObject", "Sketch008")
body.addObject(sketch9)
sketch9.AttachmentSupport = (doc.XY_Plane, [""])
sketch9.MapMode = "FlatFace"
sketch9.AttachmentOffset = App.Placement(V(0, 0, -5.559061), App.Rotation())
sketch9.addGeometry(Part.LineSegment(V(40, 66, 0), V(40, 3, 0)), False)
sketch9.addGeometry(Part.LineSegment(V(40, 3, 0), V(-40, 3, 0)), False)
sketch9.addGeometry(Part.LineSegment(V(-40, 3, 0), V(-40, 66, 0)), False)
sketch9.addGeometry(Part.LineSegment(V(-40, 66, 0), V(40, 66, 0)), False)
sketch9.addConstraint(Sketcher.Constraint("Coincident", 0, 2, 1, 1))
sketch9.addConstraint(Sketcher.Constraint("Coincident", 1, 2, 2, 1))
sketch9.addConstraint(Sketcher.Constraint("Coincident", 2, 2, 3, 1))
sketch9.addConstraint(Sketcher.Constraint("Coincident", 3, 2, 0, 1))
sketch9.addConstraint(Sketcher.Constraint("Vertical", 0))
sketch9.addConstraint(Sketcher.Constraint("Horizontal", 1))
sketch9.addConstraint(Sketcher.Constraint("Vertical", 2))
sketch9.addConstraint(Sketcher.Constraint("Horizontal", 3))
sketch9.addConstraint(Sketcher.Constraint("DistanceY", 0, 2, 0, 1, Q("2.5 in")))
sketch9.addConstraint(Sketcher.Constraint("DistanceX", 1, 2, 1, 1, Q("3.18 in")))
sketch9.addConstraint(Sketcher.Constraint("DistanceY", -1, 1, 0, 2, Q("0.1 in")))
sketch9.addConstraint(Sketcher.Constraint("DistanceX", -1, 1, 0, 2, Q("1.59 in")))
pocket4 = doc.addObject("PartDesign::Pocket", "Pocket003")
body.addObject(pocket4)
pocket4.Profile = sketch9
pocket4.Length = Q("0.2 in")
pocket4.Reversed = True

doc.recompute()
